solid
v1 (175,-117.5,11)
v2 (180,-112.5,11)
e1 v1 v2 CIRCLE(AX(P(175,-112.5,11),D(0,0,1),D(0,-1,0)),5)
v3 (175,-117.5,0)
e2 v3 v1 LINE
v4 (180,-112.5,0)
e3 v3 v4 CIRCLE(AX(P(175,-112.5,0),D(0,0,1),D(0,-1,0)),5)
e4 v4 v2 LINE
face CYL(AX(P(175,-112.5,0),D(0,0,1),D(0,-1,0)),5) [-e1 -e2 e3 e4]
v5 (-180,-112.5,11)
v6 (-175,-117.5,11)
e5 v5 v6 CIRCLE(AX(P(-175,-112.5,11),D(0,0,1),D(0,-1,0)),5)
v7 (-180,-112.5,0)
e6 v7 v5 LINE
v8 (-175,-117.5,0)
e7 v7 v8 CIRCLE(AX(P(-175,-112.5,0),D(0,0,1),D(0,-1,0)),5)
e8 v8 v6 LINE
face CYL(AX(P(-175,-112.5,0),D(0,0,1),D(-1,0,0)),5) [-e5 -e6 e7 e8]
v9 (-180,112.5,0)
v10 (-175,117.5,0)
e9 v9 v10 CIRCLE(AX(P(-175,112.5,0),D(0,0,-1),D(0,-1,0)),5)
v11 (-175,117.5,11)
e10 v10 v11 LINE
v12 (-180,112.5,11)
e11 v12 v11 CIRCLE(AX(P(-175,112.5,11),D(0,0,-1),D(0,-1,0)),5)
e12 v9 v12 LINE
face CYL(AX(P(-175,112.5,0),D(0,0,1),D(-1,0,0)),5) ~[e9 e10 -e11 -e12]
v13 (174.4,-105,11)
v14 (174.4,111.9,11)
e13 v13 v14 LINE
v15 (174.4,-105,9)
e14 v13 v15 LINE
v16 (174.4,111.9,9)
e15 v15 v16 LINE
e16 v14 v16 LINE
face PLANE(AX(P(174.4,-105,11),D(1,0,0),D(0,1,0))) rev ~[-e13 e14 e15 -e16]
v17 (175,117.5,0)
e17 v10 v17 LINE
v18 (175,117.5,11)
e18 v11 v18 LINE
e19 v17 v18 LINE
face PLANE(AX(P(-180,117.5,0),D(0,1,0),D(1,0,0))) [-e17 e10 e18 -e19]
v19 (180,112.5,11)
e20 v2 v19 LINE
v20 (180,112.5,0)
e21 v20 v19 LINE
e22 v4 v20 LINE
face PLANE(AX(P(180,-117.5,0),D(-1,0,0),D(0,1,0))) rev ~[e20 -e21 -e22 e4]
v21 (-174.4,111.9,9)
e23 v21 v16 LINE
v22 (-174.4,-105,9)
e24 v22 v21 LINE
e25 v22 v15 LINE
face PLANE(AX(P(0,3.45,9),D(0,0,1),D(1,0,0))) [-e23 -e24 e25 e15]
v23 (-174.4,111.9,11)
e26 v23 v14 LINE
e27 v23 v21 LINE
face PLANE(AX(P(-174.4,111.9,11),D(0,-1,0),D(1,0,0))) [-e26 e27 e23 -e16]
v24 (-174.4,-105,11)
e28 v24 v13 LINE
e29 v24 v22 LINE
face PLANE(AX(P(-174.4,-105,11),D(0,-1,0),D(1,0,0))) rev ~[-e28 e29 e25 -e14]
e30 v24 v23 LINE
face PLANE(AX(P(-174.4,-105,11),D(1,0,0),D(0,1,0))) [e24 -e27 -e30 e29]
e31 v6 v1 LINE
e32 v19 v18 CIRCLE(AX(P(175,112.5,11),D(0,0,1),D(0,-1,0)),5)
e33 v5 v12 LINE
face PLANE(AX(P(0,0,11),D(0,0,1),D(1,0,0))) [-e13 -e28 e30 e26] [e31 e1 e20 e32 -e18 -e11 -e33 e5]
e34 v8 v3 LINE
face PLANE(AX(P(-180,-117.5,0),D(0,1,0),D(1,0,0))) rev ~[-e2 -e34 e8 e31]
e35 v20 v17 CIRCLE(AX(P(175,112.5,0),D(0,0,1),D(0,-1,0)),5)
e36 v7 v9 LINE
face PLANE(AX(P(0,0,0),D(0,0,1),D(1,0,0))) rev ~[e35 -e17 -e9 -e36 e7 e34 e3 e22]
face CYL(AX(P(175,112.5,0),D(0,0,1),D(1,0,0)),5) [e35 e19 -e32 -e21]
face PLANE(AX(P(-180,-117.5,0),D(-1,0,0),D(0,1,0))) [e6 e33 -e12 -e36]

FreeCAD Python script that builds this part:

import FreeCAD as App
import Part
import Sketcher
Q = App.Units.Quantity


def edges_at(feature, points):
    """Names of the edges that pass closest to the given points."""
    edges = feature.Shape.Edges
    near = lambda p: min(range(len(edges)), key=lambda i: edges[i].distToShape(Part.Vertex(*p))[0])
    return sorted({f"Edge{near(p) + 1}" for p in points})


def add_polygon(sketch, points):
    """Adds a closed chain of lines whose ends are joined by coincident constraints."""
    first, n = sketch.GeometryCount, len(points)
    for a, b in zip(points, points[1:] + points[:1]):
        sketch.addGeometry(Part.LineSegment(App.Vector(*a, 0), App.Vector(*b, 0)), False)
    for i in range(n):
        sketch.addConstraint(Sketcher.Constraint("Coincident", first + i, 2, first + (i + 1) % n, 1))

doc = App.newDocument("Part")
body = doc.addObject("PartDesign::Body", "Body")

# Sketch on XY plane
sketch1 = body.newObject("Sketcher::SketchObject", "Sketch")
sketch1.AttachmentSupport = (doc.getObject("XY_Plane"), [""])
sketch1.MapMode = "FlatFace"
add_polygon(sketch1, [(-180, 118), (-180, -118), (180, -118), (180, 118)])  # lines 0-3
sketch1.addConstraint([
    Sketcher.Constraint("Vertical", 0),
    Sketcher.Constraint("Horizontal", 1),
    Sketcher.Constraint("Vertical", 2),
    Sketcher.Constraint("Horizontal", 3),
    Sketcher.Constraint("Symmetric", 0, 2, 2, 2, -1, 1),
    Sketcher.Constraint("DistanceX", 1, 1, 1, 2, Q("360 mm")),
    Sketcher.Constraint("DistanceY", 0, 2, 0, 1, Q("235 mm")),
])
pad1 = body.newObject("PartDesign::Pad", "Pad")
pad1.Profile = sketch1
pad1.Length = 11
doc.recompute()

fillet = body.newObject("PartDesign::Fillet", "Fillet")
fillet.Base = (pad1, edges_at(pad1, [
    (180, -117.5, 5.5),
    (-180, -117.5, 5.5),
    (-180, 117.5, 5.5),
    (180, 117.5, 5.5),
]))
fillet.Radius = 5

# Sketch on XY plane
sketch2 = body.newObject("Sketcher::SketchObject", "Sketch001")
sketch2.AttachmentSupport = (doc.getObject("XY_Plane"), [""])
sketch2.MapMode = "FlatFace"
sketch2.AttachmentOffset = App.Placement(App.Vector(0, 0, 11), App.Rotation())
add_polygon(sketch2, [(-174, 112), (-174, -105), (174, -105), (174, 112)])  # lines 0-3
sketch2.addConstraint([
    Sketcher.Constraint("Vertical", 0),
    Sketcher.Constraint("Horizontal", 1),
    Sketcher.Constraint("Vertical", 2),
    Sketcher.Constraint("Horizontal", 3),
    Sketcher.Constraint("DistanceX", 1, 1, 1, 2, Q("348.8 mm")),
    Sketcher.Constraint("DistanceY", 0, 2, 0, 1, Q("216.9 mm")),
    Sketcher.Constraint("DistanceY", 0, 2, -1, 1, Q("105 mm")),
    Sketcher.Constraint("DistanceX", 0, 2, -1, 1, Q("174.4 mm")),
])
pocket1 = body.newObject("PartDesign::Pocket", "Pocket")
pocket1.Profile = sketch2
pocket1.Length = 2

doc.recompute()
